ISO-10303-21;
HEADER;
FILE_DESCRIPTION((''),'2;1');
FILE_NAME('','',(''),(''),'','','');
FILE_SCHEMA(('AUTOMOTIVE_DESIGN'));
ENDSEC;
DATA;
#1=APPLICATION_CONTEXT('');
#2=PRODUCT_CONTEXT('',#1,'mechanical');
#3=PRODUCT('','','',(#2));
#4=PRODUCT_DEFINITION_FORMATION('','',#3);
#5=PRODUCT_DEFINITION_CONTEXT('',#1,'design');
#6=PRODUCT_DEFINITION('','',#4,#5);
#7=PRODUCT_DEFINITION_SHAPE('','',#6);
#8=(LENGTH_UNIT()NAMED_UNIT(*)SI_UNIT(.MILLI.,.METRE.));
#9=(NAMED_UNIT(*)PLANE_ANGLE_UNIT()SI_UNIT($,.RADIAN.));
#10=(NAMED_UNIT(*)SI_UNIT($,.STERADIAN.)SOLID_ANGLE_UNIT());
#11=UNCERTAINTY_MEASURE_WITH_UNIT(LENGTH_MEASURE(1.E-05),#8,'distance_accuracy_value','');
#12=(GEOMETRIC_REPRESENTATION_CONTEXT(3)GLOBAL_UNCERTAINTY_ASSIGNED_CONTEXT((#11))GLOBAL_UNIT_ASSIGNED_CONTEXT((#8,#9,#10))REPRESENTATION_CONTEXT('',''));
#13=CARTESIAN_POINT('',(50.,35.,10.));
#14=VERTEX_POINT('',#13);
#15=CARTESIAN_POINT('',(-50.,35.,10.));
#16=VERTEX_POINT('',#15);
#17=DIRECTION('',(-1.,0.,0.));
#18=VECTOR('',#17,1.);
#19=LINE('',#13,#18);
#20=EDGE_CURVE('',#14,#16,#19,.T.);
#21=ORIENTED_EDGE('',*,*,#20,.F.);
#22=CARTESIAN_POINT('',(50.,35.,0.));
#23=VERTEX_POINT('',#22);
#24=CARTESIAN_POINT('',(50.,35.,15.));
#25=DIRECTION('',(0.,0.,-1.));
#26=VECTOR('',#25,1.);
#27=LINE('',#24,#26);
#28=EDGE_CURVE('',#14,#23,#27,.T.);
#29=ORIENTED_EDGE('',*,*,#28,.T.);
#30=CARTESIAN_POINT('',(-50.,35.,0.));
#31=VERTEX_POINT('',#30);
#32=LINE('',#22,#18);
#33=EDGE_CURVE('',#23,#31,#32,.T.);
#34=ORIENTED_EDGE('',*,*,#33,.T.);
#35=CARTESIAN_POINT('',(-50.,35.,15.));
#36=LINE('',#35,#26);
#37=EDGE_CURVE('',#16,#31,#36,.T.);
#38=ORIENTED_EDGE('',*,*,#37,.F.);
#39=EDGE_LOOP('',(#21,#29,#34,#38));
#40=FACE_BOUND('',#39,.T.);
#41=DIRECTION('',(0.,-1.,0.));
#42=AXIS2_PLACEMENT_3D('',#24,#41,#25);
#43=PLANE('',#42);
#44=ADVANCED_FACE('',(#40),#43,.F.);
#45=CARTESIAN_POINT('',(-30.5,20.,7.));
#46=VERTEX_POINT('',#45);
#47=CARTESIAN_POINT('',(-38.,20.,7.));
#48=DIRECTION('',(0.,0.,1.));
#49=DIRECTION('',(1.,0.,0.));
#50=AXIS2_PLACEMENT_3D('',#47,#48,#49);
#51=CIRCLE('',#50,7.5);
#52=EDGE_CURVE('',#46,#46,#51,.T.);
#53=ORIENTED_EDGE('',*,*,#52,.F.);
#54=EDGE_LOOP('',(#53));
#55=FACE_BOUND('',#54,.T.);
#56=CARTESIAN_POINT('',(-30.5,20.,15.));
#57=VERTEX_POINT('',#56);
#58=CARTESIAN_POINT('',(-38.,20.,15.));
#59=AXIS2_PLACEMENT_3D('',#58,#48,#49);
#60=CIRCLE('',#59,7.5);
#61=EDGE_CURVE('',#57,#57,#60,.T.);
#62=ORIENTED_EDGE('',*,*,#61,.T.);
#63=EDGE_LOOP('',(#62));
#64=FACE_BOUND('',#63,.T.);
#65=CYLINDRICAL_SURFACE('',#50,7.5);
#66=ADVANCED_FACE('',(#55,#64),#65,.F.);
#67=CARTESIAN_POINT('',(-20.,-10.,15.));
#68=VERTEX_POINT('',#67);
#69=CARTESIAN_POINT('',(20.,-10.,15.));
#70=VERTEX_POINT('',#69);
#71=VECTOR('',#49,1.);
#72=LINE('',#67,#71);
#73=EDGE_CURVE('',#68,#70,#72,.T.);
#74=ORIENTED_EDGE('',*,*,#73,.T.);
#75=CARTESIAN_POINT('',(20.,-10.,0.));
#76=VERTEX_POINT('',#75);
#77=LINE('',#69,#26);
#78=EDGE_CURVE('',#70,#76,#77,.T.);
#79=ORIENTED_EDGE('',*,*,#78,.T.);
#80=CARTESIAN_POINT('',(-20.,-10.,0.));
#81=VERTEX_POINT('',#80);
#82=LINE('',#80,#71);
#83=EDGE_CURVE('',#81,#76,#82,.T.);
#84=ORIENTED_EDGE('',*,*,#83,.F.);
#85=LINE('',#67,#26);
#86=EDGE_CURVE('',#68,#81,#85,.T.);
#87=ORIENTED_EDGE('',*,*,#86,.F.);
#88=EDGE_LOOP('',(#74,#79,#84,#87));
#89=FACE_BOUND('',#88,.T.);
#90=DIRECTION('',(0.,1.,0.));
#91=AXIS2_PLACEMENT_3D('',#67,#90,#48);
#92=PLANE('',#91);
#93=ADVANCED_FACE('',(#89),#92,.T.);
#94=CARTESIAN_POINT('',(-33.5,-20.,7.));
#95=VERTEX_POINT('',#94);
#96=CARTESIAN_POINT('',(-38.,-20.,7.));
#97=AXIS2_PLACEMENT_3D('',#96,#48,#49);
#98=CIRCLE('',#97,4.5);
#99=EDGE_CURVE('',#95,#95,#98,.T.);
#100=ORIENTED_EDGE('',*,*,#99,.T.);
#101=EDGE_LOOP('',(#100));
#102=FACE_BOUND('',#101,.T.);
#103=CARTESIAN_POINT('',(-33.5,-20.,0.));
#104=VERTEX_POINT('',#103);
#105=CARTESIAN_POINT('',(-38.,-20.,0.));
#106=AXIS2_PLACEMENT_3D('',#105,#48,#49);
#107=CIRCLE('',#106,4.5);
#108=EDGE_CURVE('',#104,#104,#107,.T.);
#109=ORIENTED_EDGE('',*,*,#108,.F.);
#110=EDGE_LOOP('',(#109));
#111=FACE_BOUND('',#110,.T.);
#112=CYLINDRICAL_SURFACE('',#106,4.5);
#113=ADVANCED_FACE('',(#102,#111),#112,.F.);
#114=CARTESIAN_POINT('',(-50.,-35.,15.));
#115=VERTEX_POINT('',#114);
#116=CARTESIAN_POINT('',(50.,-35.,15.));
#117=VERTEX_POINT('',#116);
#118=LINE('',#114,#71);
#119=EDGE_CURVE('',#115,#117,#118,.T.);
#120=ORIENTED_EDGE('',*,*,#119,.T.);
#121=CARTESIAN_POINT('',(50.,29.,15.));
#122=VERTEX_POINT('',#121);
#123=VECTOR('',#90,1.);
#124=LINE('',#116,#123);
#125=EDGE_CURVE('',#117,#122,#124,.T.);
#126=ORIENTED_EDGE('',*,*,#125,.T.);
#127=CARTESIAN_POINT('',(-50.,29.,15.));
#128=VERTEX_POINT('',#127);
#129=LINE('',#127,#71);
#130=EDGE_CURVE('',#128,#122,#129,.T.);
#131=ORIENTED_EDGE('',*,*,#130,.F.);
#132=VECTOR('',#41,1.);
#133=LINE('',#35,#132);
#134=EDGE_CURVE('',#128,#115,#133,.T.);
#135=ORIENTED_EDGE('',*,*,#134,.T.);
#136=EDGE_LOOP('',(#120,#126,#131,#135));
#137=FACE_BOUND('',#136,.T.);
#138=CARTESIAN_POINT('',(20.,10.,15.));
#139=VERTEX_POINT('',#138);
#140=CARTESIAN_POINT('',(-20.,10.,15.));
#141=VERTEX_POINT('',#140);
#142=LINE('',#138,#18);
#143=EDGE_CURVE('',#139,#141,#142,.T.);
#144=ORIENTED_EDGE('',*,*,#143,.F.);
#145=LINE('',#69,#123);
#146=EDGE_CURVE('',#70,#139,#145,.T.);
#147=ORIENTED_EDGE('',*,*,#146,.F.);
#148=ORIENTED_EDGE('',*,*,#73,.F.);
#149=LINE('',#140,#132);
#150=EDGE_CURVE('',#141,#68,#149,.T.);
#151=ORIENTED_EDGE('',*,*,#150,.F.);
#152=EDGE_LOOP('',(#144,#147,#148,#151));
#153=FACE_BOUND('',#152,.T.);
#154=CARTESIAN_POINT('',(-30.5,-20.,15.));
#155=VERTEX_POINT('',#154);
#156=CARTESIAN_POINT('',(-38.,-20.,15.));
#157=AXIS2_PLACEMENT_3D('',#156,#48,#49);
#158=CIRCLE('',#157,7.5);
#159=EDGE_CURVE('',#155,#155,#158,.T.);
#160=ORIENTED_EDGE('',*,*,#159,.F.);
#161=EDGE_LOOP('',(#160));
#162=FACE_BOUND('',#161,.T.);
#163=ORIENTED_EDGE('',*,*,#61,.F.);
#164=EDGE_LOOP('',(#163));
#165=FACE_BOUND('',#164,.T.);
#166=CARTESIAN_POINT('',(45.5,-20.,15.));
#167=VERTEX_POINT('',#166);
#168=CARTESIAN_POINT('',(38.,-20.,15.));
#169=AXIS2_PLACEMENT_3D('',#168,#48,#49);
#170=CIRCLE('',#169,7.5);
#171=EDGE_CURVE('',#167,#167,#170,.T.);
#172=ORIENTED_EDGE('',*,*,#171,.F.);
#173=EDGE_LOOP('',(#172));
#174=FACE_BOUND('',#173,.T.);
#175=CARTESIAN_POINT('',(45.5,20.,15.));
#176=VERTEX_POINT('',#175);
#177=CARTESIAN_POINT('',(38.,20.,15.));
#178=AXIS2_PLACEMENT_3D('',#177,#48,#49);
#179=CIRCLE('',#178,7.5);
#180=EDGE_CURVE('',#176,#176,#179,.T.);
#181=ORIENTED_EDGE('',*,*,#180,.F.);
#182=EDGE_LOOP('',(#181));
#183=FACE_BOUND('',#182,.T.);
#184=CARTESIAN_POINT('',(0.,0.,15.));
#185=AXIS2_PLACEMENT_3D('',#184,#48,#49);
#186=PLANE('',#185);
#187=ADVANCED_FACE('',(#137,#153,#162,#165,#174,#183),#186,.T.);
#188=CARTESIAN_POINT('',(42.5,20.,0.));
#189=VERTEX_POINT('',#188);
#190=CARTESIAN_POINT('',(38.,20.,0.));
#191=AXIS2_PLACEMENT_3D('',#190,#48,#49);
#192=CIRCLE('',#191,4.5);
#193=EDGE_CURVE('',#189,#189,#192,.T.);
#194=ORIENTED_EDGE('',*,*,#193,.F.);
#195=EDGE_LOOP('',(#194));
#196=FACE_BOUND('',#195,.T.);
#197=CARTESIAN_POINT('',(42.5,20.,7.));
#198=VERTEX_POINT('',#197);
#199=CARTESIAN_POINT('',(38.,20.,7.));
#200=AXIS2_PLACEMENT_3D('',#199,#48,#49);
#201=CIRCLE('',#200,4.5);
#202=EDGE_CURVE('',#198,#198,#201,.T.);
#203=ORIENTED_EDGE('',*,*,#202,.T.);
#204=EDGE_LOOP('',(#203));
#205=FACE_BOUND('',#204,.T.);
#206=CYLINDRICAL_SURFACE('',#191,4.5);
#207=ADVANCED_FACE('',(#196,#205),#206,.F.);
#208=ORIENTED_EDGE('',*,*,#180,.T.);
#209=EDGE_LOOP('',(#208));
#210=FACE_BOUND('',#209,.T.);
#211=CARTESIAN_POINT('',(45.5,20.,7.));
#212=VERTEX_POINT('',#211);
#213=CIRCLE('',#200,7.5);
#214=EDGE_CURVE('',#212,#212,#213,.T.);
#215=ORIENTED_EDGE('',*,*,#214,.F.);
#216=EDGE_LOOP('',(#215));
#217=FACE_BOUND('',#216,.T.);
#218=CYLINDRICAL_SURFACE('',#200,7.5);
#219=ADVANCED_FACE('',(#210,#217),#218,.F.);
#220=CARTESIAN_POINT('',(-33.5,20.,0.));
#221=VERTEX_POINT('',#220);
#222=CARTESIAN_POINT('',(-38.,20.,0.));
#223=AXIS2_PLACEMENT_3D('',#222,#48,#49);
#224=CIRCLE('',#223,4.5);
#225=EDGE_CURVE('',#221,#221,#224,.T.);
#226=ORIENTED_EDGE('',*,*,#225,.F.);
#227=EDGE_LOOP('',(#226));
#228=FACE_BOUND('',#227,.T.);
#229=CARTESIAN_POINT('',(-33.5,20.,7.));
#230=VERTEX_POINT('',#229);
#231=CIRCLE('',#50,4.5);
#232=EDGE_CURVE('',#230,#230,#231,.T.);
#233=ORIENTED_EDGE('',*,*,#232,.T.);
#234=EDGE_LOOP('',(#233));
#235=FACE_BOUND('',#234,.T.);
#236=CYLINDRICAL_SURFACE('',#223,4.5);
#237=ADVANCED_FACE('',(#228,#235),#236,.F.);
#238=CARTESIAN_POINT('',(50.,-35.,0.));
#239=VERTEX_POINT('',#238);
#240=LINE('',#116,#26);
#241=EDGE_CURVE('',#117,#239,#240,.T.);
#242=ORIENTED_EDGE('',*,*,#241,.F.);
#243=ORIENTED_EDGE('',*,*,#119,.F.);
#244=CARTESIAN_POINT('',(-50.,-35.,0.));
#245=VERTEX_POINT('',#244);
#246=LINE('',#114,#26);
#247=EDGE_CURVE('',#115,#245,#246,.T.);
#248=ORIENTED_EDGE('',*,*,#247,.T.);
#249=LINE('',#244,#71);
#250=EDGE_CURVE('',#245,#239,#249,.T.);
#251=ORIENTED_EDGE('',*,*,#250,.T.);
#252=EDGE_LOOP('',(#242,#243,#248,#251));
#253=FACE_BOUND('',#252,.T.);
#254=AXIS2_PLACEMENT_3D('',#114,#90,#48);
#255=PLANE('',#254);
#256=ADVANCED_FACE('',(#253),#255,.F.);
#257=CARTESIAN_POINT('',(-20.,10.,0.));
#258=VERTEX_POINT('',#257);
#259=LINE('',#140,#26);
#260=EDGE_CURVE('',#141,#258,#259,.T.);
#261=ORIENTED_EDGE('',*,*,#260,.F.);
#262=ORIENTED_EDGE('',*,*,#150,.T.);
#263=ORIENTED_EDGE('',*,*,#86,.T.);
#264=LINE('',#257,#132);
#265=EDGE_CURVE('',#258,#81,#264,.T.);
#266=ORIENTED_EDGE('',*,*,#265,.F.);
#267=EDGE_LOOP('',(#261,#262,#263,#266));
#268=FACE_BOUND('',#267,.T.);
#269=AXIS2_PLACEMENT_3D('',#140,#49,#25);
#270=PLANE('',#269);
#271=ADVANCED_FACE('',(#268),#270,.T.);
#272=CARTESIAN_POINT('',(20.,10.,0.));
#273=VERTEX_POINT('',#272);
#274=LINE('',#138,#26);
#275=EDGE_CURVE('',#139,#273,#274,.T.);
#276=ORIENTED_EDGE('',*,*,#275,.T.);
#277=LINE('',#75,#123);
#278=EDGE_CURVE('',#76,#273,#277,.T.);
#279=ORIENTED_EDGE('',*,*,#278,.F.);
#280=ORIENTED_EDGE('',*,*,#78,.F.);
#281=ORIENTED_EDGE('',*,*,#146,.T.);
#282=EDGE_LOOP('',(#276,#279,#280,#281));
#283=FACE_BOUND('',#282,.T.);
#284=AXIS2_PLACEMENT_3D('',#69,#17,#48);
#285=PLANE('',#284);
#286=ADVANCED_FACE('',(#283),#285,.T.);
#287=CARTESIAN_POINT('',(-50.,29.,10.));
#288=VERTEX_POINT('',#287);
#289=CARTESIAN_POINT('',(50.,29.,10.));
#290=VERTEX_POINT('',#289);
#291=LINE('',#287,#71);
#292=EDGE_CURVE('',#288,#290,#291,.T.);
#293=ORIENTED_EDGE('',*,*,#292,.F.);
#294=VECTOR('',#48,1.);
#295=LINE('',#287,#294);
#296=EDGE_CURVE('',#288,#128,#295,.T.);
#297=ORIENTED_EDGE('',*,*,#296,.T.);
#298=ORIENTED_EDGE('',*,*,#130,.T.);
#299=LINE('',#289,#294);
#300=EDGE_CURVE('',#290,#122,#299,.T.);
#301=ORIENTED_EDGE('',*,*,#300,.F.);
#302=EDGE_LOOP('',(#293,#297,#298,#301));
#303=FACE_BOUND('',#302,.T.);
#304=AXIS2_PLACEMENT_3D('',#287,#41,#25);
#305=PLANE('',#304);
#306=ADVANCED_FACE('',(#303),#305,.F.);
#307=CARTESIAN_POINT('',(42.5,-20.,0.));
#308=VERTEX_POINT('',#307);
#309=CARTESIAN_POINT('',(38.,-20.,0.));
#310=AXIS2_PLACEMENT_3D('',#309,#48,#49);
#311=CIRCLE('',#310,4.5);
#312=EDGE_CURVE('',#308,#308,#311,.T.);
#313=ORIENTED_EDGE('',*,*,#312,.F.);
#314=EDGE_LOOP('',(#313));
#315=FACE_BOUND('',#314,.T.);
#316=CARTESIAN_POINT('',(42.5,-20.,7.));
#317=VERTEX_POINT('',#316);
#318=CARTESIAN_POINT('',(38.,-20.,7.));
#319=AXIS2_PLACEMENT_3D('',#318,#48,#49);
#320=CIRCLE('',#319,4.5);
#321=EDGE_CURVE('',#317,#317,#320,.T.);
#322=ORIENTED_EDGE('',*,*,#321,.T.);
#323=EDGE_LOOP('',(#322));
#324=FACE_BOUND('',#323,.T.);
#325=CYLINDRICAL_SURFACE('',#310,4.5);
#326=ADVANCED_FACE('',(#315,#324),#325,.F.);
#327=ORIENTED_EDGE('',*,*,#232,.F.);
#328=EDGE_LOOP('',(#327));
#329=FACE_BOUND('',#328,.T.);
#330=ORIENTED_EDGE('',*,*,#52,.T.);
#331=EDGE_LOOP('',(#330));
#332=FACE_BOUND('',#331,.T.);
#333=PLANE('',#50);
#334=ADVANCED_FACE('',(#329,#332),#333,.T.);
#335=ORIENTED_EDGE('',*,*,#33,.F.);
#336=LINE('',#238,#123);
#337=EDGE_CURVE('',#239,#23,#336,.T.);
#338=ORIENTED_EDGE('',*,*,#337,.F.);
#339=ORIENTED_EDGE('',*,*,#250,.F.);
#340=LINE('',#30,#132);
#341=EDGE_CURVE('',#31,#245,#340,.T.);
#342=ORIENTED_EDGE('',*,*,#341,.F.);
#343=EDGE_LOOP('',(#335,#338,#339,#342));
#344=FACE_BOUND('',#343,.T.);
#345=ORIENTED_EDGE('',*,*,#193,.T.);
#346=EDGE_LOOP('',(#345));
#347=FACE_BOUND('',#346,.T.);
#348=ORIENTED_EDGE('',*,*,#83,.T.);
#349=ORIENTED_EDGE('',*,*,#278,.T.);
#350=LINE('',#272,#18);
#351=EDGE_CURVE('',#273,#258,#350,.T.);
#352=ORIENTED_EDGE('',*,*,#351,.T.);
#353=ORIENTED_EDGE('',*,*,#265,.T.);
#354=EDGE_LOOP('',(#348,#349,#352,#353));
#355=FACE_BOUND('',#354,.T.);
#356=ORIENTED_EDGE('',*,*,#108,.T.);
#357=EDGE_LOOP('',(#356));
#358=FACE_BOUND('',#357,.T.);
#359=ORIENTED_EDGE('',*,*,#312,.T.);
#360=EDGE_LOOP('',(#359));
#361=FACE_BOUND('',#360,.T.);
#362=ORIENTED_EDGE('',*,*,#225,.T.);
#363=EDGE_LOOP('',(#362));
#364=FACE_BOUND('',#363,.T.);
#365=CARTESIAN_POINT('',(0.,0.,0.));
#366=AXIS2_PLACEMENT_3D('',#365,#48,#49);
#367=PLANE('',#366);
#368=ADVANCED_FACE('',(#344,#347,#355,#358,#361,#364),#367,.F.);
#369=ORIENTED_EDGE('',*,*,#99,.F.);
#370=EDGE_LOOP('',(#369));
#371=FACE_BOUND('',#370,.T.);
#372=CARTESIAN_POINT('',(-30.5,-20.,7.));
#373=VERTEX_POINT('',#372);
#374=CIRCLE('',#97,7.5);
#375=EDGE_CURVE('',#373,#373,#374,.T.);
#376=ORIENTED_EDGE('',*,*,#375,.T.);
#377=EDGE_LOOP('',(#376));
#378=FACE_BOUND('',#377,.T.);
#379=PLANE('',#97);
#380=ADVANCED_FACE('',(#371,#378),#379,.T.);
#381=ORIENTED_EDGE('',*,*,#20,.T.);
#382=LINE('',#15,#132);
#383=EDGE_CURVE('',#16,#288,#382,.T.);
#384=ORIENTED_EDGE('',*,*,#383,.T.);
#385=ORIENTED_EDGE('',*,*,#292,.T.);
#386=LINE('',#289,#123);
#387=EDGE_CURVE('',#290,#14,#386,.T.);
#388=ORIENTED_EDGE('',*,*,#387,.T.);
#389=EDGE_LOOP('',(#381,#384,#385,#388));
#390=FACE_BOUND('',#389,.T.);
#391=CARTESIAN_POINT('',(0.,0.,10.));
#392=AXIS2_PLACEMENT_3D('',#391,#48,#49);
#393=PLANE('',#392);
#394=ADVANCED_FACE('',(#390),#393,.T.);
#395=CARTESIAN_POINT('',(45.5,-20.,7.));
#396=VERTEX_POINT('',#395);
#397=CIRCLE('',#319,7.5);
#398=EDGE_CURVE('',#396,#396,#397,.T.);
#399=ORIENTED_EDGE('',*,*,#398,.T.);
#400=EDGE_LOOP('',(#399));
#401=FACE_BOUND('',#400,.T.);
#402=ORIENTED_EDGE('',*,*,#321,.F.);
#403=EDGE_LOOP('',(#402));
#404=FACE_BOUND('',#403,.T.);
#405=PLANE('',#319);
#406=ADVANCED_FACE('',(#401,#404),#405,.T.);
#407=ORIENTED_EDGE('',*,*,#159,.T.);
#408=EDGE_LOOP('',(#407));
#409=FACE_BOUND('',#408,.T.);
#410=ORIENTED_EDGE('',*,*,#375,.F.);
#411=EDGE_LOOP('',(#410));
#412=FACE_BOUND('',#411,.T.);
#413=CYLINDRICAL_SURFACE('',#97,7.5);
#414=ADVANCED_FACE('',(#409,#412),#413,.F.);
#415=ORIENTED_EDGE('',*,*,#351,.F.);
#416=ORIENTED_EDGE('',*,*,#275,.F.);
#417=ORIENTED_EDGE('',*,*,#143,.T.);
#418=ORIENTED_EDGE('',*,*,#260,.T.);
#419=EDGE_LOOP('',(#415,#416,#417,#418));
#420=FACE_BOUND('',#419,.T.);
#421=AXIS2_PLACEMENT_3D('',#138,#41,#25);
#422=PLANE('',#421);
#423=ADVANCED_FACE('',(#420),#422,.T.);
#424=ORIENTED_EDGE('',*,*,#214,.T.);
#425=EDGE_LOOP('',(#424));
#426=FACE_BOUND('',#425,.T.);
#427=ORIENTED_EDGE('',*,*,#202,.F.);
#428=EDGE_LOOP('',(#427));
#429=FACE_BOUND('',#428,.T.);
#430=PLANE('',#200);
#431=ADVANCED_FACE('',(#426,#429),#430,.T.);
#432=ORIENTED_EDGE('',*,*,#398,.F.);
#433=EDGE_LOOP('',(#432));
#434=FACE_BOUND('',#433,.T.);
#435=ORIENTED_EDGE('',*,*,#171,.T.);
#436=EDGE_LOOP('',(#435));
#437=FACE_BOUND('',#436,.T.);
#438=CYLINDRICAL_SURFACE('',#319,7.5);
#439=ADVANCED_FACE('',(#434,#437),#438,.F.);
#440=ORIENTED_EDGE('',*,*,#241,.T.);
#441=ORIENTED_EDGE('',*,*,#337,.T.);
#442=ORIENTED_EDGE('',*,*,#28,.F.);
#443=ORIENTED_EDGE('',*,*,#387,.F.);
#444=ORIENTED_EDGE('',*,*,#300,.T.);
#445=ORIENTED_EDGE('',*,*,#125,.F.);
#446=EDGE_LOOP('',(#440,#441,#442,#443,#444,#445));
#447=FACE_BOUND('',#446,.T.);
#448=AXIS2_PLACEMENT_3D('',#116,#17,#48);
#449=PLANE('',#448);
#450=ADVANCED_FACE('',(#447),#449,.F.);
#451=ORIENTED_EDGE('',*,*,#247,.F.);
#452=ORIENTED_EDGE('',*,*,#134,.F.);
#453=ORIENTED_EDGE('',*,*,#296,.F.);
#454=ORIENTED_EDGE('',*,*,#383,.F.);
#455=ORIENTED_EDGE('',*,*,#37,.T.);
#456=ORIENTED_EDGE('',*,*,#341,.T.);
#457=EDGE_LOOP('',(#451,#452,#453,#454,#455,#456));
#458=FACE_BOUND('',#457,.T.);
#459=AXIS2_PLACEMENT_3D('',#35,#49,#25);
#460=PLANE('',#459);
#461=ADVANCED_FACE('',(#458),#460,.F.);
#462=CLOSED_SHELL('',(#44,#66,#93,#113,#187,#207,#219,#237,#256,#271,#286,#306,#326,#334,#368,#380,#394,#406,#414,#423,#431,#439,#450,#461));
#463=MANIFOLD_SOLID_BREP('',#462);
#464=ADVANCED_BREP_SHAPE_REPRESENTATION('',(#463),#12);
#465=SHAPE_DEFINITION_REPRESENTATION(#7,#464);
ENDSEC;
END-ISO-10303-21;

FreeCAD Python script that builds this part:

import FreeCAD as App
import Part
import Sketcher
from FreeCAD import Vector

doc = App.newDocument("Part")
body = doc.addObject("PartDesign::Body", "Body")

# Sketch on XY plane
sketch1 = body.newObject("Sketcher::SketchObject", "Sketch")
sketch1.AttachmentSupport = (doc.getObject("XY_Plane"), [""])
sketch1.MapMode = "FlatFace"
sketch1.addGeometry([
    Part.LineSegment(Vector(-50, 35, 0), Vector(-50, -35, 0)),
    Part.LineSegment(Vector(-50, -35, 0), Vector(50, -35, 0)),
    Part.LineSegment(Vector(50, -35, 0), Vector(50, 35, 0)),
    Part.LineSegment(Vector(50, 35, 0), Vector(-50, 35, 0)),
], False)
sketch1.addConstraint([
    Sketcher.Constraint("Coincident", 0, 2, 1, 1),
    Sketcher.Constraint("Coincident", 1, 2, 2, 1),
    Sketcher.Constraint("Coincident", 2, 2, 3, 1),
    Sketcher.Constraint("Coincident", 3, 2, 0, 1),
    Sketcher.Constraint("Vertical", 0),
    Sketcher.Constraint("Horizontal", 1),
    Sketcher.Constraint("Vertical", 2),
    Sketcher.Constraint("Horizontal", 3),
    Sketcher.Constraint("Symmetric", 0, 2, 2, 2, -1, 1),
    Sketcher.Constraint("DistanceX", 1, 1, 1, 2, 100.0),
    Sketcher.Constraint("DistanceY", 0, 2, 0, 1, 70.0),
])
pad1 = body.newObject("PartDesign::Pad", "Pad")
pad1.Profile = sketch1
pad1.Length = 15

# Sketch on XY plane
sketch2 = body.newObject("Sketcher::SketchObject", "Sketch001")
sketch2.AttachmentSupport = (doc.getObject("XY_Plane"), [""])
sketch2.MapMode = "FlatFace"
sketch2.AttachmentOffset = App.Placement(Vector(0, 0, 15), App.Rotation())
sketch2.addGeometry([
    Part.LineSegment(Vector(-50, 35, 0), Vector(-50, 29, 0)),
    Part.LineSegment(Vector(-50, 29, 0), Vector(50, 29, 0)),
    Part.LineSegment(Vector(50, 29, 0), Vector(50, 35, 0)),
    Part.LineSegment(Vector(50, 35, 0), Vector(-50, 35, 0)),
], False)
sketch2.addConstraint([
    Sketcher.Constraint("Coincident", 0, 2, 1, 1),
    Sketcher.Constraint("Coincident", 1, 2, 2, 1),
    Sketcher.Constraint("Coincident", 2, 2, 3, 1),
    Sketcher.Constraint("Coincident", 3, 2, 0, 1),
    Sketcher.Constraint("Vertical", 0),
    Sketcher.Constraint("Horizontal", 1),
    Sketcher.Constraint("Vertical", 2),
    Sketcher.Constraint("Horizontal", 3),
    Sketcher.Constraint("DistanceX", 1, 1, 1, 2, 100.0),
    Sketcher.Constraint("DistanceY", 0, 2, 0, 1, 6.0),
    Sketcher.Constraint("DistanceX", 0, 2, -1, 1, 50.0),
    Sketcher.Constraint("DistanceY", -1, 1, 0, 2, 29.0),
])
pocket1 = body.newObject("PartDesign::Pocket", "Pocket")
pocket1.Profile = sketch2
pocket1.Length = 5

# Sketch on XY plane
sketch3 = body.newObject("Sketcher::SketchObject", "Sketch002")
sketch3.AttachmentSupport = (doc.getObject("XY_Plane"), [""])
sketch3.MapMode = "FlatFace"
sketch3.addGeometry([
    Part.LineSegment(Vector(-20, 10, 0), Vector(-20, -10, 0)),
    Part.LineSegment(Vector(-20, -10, 0), Vector(20, -10, 0)),
    Part.LineSegment(Vector(20, -10, 0), Vector(20, 10, 0)),
    Part.LineSegment(Vector(20, 10, 0), Vector(-20, 10, 0)),
], False)
sketch3.addConstraint([
    Sketcher.Constraint("Coincident", 0, 2, 1, 1),
    Sketcher.Constraint("Coincident", 1, 2, 2, 1),
    Sketcher.Constraint("Coincident", 2, 2, 3, 1),
    Sketcher.Constraint("Coincident", 3, 2, 0, 1),
    Sketcher.Constraint("Vertical", 0),
    Sketcher.Constraint("Horizontal", 1),
    Sketcher.Constraint("Vertical", 2),
    Sketcher.Constraint("Horizontal", 3),
    Sketcher.Constraint("Symmetric", 0, 2, 2, 2, -1, 1),
    Sketcher.Constraint("DistanceX", 1, 1, 1, 2, 40.0),
    Sketcher.Constraint("DistanceY", 0, 2, 0, 1, 20.0),
])
pocket2 = body.newObject("PartDesign::Pocket", "Pocket001")
pocket2.Profile = sketch3
pocket2.Type = "ThroughAll"
pocket2.Reversed = True

# Sketch on XY plane
sketch4 = body.newObject("Sketcher::SketchObject", "Sketch003")
sketch4.AttachmentSupport = (doc.getObject("XY_Plane"), [""])
sketch4.MapMode = "FlatFace"
sketch4.AttachmentOffset = App.Placement(Vector(0, 0, 15), App.Rotation())
sketch4.addGeometry([
    Part.Circle(Vector(38, 20, 0), Vector(0, 0, 1), 8),
    Part.Circle(Vector(-38, 20, 0), Vector(0, 0, 1), 8),
    Part.Circle(Vector(38, -20, 0), Vector(0, 0, 1), 8),
    Part.Circle(Vector(-38, -20, 0), Vector(0, 0, 1), 8),
], False)
sketch4.addConstraint([
    Sketcher.Constraint("Equal", 0, 1),
    Sketcher.Constraint("Equal", 1, 2),
    Sketcher.Constraint("Equal", 2, 3),
    Sketcher.Constraint("Symmetric", 1, 3, 2, 3, -1, 1),
    Sketcher.Constraint("Symmetric", 0, 3, 3, 3, -1, 1),
    Sketcher.Constraint("Symmetric", 0, 3, 1, 3, -2),
    Sketcher.Constraint("Diameter", 0, 15.0),
    Sketcher.Constraint("DistanceX", -1, 1, 0, 3, 38.0),
    Sketcher.Constraint("DistanceY", -1, 1, 0, 3, 20.0),
])
pocket3 = body.newObject("PartDesign::Pocket", "Pocket002")
pocket3.Profile = sketch4
pocket3.Length = 8

# Sketch on XY plane
sketch5 = body.newObject("Sketcher::SketchObject", "Sketch004")
sketch5.AttachmentSupport = (doc.getObject("XY_Plane"), [""])
sketch5.MapMode = "FlatFace"
sketch5.AttachmentOffset = App.Placement(Vector(0, 0, 15), App.Rotation())
sketch5.addGeometry([
    Part.Circle(Vector(38, 20, 0), Vector(0, 0, 1), 4.5),
    Part.Circle(Vector(-38, 20, 0), Vector(0, 0, 1), 4.5),
    Part.Circle(Vector(38, -20, 0), Vector(0, 0, 1), 4.5),
    Part.Circle(Vector(-38, -20, 0), Vector(0, 0, 1), 4.5),
], False)
sketch5.addConstraint([
    Sketcher.Constraint("Equal", 0, 1),
    Sketcher.Constraint("Equal", 1, 2),
    Sketcher.Constraint("Equal", 2, 3),
    Sketcher.Constraint("Symmetric", 1, 3, 2, 3, -1, 1),
    Sketcher.Constraint("Symmetric", 0, 3, 3, 3, -1, 1),
    Sketcher.Constraint("Symmetric", 0, 3, 1, 3, -2),
    Sketcher.Constraint("Diameter", 0, 9.0),
    Sketcher.Constraint("DistanceX", -1, 1, 0, 3, 38.0),
    Sketcher.Constraint("DistanceY", -1, 1, 0, 3, 20.0),
])
pocket4 = body.newObject("PartDesign::Pocket", "Pocket003")
pocket4.Profile = sketch5
pocket4.Type = "ThroughAll"

doc.recompute()
